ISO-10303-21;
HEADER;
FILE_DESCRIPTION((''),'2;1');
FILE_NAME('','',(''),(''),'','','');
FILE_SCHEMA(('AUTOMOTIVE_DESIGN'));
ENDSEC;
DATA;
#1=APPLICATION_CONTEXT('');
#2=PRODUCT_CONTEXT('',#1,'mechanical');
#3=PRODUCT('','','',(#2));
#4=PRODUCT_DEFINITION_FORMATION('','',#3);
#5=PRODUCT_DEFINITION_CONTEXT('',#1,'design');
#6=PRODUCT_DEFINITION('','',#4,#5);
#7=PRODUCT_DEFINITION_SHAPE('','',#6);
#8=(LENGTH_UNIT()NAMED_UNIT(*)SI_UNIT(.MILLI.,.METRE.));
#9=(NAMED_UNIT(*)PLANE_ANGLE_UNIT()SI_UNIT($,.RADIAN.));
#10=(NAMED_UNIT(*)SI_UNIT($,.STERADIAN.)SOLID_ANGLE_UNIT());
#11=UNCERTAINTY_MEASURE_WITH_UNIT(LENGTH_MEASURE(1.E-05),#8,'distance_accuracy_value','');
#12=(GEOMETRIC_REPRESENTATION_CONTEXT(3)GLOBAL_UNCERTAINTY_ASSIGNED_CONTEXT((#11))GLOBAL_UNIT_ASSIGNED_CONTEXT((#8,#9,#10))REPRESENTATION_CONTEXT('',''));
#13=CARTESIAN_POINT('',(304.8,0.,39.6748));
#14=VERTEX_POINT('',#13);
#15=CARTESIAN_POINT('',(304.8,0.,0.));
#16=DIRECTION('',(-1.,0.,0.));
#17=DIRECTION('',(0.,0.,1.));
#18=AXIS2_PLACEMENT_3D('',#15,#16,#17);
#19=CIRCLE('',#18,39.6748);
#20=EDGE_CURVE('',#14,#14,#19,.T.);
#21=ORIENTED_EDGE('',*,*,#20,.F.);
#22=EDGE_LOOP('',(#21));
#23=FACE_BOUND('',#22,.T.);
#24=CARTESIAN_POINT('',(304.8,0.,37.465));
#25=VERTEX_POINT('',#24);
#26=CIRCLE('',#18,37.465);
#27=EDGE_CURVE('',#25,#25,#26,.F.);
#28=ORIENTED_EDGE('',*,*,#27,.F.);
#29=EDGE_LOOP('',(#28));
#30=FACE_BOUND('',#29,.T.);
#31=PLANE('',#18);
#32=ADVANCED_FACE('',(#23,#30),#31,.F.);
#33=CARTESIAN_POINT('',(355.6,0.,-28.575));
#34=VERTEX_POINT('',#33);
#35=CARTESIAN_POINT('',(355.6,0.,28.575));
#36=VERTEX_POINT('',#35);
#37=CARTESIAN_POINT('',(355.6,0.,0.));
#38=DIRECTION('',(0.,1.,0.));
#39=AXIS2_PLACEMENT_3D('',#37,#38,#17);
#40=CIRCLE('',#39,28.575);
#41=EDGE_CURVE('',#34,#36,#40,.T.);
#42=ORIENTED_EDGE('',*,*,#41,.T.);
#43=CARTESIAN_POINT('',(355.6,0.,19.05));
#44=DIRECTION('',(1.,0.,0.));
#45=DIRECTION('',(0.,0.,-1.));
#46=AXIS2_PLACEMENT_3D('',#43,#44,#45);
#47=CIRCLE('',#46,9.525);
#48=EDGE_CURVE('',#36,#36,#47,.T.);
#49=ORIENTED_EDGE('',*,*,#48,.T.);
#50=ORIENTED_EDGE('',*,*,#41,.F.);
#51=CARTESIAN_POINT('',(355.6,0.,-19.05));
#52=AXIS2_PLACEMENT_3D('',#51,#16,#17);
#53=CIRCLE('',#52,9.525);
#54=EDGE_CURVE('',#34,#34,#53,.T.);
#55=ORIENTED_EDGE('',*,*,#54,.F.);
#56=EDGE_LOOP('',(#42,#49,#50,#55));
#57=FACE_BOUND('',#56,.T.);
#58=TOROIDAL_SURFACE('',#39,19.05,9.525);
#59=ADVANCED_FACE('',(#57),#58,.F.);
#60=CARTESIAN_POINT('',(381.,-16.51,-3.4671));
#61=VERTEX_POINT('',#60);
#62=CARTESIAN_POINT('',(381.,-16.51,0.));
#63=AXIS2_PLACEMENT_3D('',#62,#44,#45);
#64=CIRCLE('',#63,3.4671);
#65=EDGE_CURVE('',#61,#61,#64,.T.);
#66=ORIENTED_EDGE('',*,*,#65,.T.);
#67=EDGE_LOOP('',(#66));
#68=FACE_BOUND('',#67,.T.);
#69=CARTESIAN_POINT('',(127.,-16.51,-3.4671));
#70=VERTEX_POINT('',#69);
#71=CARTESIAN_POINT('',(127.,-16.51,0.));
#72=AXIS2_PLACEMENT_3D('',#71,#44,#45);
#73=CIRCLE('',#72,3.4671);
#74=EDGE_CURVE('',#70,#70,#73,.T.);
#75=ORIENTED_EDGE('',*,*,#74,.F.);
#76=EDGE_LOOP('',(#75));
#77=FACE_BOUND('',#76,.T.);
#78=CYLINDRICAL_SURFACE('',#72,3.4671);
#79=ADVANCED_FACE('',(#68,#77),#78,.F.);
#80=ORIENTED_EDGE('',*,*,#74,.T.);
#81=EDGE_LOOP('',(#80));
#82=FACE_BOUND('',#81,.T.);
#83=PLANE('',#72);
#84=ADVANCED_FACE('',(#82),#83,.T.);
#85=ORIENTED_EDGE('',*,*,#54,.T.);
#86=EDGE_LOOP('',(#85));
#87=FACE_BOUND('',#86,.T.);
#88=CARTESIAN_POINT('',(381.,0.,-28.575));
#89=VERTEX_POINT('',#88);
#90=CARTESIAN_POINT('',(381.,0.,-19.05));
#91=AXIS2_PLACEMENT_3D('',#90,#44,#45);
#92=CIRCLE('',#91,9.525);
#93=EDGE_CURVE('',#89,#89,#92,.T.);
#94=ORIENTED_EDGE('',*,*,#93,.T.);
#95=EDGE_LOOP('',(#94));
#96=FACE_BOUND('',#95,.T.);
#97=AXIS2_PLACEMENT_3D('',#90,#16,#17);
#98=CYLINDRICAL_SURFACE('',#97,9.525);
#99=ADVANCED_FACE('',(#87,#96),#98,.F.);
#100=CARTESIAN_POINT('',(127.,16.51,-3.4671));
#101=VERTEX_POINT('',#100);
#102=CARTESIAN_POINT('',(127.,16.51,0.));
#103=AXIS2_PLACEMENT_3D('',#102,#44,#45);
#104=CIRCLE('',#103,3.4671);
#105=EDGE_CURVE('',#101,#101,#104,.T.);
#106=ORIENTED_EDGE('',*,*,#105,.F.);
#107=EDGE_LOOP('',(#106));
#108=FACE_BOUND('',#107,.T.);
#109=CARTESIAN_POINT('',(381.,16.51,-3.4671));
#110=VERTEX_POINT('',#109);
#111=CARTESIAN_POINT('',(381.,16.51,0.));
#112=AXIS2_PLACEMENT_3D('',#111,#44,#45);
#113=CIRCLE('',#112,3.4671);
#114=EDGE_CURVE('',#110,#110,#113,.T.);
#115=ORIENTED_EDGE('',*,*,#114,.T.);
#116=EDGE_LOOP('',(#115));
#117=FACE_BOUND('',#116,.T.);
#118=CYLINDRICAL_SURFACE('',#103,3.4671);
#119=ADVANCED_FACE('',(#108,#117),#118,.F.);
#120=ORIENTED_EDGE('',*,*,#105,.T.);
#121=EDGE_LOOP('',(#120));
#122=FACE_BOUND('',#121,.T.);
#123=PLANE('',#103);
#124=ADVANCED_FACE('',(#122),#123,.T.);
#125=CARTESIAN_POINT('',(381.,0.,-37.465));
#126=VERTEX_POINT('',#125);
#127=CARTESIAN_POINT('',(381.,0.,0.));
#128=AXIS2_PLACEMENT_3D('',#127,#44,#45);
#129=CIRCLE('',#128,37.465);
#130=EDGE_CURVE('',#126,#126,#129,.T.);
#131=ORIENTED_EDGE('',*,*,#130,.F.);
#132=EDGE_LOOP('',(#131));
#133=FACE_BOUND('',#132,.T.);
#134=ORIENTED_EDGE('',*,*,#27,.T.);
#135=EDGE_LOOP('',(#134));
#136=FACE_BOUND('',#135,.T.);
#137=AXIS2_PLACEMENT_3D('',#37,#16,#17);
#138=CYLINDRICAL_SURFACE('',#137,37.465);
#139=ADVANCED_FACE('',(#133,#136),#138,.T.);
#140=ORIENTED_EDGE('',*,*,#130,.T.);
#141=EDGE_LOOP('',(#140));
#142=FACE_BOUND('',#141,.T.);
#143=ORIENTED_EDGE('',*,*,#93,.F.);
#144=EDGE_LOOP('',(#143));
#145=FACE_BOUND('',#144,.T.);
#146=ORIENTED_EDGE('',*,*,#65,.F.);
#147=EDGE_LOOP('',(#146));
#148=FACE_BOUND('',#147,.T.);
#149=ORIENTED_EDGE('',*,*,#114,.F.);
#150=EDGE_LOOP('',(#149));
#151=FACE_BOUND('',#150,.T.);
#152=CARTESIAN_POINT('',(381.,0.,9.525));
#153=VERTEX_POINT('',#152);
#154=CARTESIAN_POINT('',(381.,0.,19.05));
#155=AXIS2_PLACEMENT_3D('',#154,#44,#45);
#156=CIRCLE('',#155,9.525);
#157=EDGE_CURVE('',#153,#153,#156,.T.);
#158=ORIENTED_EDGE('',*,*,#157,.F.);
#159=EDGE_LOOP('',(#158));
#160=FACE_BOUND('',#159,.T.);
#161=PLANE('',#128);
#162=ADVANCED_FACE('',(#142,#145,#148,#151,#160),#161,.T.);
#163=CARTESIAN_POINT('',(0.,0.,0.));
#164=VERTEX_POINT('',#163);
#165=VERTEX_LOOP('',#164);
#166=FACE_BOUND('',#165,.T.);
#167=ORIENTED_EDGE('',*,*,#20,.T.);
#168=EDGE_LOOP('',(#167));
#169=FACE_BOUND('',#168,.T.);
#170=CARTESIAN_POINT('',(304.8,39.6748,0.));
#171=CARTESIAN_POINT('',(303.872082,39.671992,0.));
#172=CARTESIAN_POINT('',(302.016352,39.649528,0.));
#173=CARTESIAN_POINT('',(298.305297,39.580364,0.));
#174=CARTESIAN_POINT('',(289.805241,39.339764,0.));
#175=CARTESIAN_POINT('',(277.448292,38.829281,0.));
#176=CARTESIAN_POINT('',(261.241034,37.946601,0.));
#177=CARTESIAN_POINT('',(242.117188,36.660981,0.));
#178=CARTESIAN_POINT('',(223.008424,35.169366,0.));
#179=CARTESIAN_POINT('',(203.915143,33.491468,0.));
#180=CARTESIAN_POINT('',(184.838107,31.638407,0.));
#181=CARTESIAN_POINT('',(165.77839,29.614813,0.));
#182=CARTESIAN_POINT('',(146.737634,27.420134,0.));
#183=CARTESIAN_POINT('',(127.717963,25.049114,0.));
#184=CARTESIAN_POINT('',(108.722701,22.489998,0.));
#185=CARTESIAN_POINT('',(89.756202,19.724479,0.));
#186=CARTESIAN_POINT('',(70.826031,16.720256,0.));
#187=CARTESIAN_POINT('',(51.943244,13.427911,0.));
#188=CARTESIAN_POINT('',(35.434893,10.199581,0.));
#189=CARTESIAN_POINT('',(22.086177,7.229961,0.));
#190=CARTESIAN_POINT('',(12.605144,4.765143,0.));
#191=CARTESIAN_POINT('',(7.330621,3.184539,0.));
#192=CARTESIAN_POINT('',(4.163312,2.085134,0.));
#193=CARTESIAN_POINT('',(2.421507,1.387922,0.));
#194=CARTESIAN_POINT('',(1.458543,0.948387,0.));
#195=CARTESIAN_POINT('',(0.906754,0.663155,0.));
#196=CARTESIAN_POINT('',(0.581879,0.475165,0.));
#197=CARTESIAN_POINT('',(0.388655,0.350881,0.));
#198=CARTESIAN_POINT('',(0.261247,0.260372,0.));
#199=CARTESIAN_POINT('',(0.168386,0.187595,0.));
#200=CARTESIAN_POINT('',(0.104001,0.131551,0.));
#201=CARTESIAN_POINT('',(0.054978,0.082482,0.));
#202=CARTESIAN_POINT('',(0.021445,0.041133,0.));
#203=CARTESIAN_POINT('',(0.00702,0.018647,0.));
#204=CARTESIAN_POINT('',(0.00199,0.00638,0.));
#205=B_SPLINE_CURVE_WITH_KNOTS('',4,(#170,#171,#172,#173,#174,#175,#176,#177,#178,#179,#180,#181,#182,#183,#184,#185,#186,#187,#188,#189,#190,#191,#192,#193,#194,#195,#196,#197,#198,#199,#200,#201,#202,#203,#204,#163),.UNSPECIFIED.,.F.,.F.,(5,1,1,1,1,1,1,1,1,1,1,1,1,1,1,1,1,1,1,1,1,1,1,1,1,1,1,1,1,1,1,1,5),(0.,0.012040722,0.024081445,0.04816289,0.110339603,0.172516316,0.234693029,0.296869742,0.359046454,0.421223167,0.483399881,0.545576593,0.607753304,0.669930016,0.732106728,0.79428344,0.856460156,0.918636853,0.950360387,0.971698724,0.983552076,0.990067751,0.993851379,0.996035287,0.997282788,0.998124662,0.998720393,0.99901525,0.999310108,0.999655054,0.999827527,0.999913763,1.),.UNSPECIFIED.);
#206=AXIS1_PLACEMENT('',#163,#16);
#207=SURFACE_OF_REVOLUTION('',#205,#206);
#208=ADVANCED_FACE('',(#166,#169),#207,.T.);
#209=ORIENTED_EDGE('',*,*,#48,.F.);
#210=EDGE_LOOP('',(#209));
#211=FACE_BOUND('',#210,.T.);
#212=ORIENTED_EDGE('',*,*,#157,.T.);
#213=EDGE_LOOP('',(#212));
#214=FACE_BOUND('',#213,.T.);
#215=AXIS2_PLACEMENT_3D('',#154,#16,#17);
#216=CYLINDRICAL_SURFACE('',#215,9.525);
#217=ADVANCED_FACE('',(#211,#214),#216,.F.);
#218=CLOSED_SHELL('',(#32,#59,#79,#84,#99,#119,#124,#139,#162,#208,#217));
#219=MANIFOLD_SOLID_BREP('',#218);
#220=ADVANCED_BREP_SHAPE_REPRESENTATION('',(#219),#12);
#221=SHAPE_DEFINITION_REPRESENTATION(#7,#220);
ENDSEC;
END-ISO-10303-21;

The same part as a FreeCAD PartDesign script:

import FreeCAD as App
import Part
import Sketcher
Q = App.Units.Quantity

doc = App.newDocument("Part")
params = doc.addObject("Spreadsheet::Sheet", "Params")
for row, (alias, value) in enumerate([
    ("revolution_angle", "360 deg"),
    ("sketch2_diameter", "2.95 in"),
    ("pad1_length", "2 in"),
    ("sketch3_diameter", "0.75 in"),
    ("groove_angle", "180 deg"),
    ("sketch4_diameter", "2.95 in"),
    ("sketch4_diameter2", "0.75 in"),
    ("pad2_length", "1 in"),
    ("sketch5_diameter", "0.273 in"),
    ("pocket1_length", "10 in"),
], start=1):
    params.set(f"A{row}", alias)
    params.set(f"B{row}", "=" + value)
    params.setAlias(f"B{row}", alias)

body = doc.addObject("PartDesign::Body", "Body")

# Sketch on XY plane
sketch1 = doc.addObject("Sketcher::SketchObject", "Sketch")
body.addObject(sketch1)
sketch1.AttachmentSupport = (doc.XY_Plane, [""])
sketch1.MapMode = "FlatFace"
sketch1.addGeometry([
    Part.LineSegment(App.Vector(0, 0, 0), App.Vector(304.8, 0, 0)),
    Part.LineSegment(App.Vector(304.8, 0, 0), App.Vector(304.8, 39.6748, 0)),
    Part.BSplineCurve([App.Vector(0, 0, 0), App.Vector(0.00199, 0.00638, 0), App.Vector(0.00702, 0.018647, 0), App.Vector(0.021445, 0.041133, 0), App.Vector(0.054978, 0.082482, 0), App.Vector(0.104001, 0.131551, 0), App.Vector(0.168386, 0.187595, 0), App.Vector(0.261247, 0.260372, 0), App.Vector(0.388655, 0.350881, 0), App.Vector(0.581879, 0.475165, 0), App.Vector(0.906754, 0.663155, 0), App.Vector(1.458543, 0.948387, 0), App.Vector(2.421507, 1.387922, 0), App.Vector(4.163312, 2.085134, 0), App.Vector(7.330621, 3.184539, 0), App.Vector(12.605144, 4.765143, 0), App.Vector(22.086177, 7.229961, 0), App.Vector(35.434893, 10.199581, 0), App.Vector(51.943244, 13.427911, 0), App.Vector(70.826031, 16.720256, 0), App.Vector(89.756202, 19.724479, 0), App.Vector(108.722701, 22.489998, 0), App.Vector(127.717963, 25.049114, 0), App.Vector(146.737634, 27.420134, 0), App.Vector(165.77839, 29.614813, 0), App.Vector(184.838107, 31.638407, 0), App.Vector(203.915143, 33.491468, 0), App.Vector(223.008424, 35.169366, 0), App.Vector(242.117188, 36.660981, 0), App.Vector(261.241034, 37.946601, 0), App.Vector(277.448292, 38.829281, 0), App.Vector(289.805241, 39.339764, 0), App.Vector(298.305297, 39.580364, 0), App.Vector(302.016352, 39.649528, 0), App.Vector(303.872082, 39.671992, 0), App.Vector(304.8, 39.6748, 0)], [5, 1, 1, 1, 1, 1, 1, 1, 1, 1, 1, 1, 1, 1, 1, 1, 1, 1, 1, 1, 1, 1, 1, 1, 1, 1, 1, 1, 1, 1, 1, 1, 5], [0, 0.000086237, 0.000172473, 0.000344946, 0.000689892, 0.00098475, 0.001279607, 0.001875338, 0.002717212, 0.003964713, 0.006148621, 0.009932249, 0.016447924, 0.028301276, 0.049639613, 0.081363147, 0.143539844, 0.20571656, 0.267893272, 0.330069984, 0.392246696, 0.454423407, 0.516600119, 0.578776833, 0.640953546, 0.703130258, 0.765306971, 0.827483684, 0.889660397, 0.95183711, 0.975918555, 0.987959278, 1], False, 4, [1, 1, 1, 1, 1, 1, 1, 1, 1, 1, 1, 1, 1, 1, 1, 1, 1, 1, 1, 1, 1, 1, 1, 1, 1, 1, 1, 1, 1, 1, 1, 1, 1, 1, 1, 1], False),
], False)
sketch1.addConstraint([
    Sketcher.Constraint("Block", 2),
    Sketcher.Constraint("Coincident", 0, 2, 1, 1),
    Sketcher.Constraint("Coincident", 1, 2, 2, 2),
    Sketcher.Constraint("Coincident", 2, 1, 0, 1),
    Sketcher.Constraint("Horizontal", 0),
    Sketcher.Constraint("Vertical", 1),
])
revolution = doc.addObject("PartDesign::Revolution", "Revolution")
body.addObject(revolution)
revolution.Profile = sketch1
revolution.ReferenceAxis = (sketch1, ["H_Axis"])
revolution.setExpression("Angle", "Params.revolution_angle")

# Sketch on YZ plane
sketch2 = doc.addObject("Sketcher::SketchObject", "Sketch001")
body.addObject(sketch2)
sketch2.AttachmentSupport = (doc.YZ_Plane, [""])
sketch2.MapMode = "FlatFace"
sketch2.AttachmentOffset = App.Placement(App.Vector(0, 0, 12 * 25.4), App.Rotation())
sketch2.addGeometry(Part.Circle(App.Vector(0, 0, 0), App.Vector(0, 0, 1), 37), False)
sketch2.addConstraint([
    Sketcher.Constraint("Coincident", 0, 3, -1, 1),
    Sketcher.Constraint("Diameter", 0, Q("2.95 in")),
])
sketch2.setExpression("Constraints[1]", "Params.sketch2_diameter")
pad1 = doc.addObject("PartDesign::Pad", "Pad")
body.addObject(pad1)
pad1.Profile = sketch2
pad1.setExpression("Length", "Params.pad1_length")

# Sketch on YZ plane
sketch3 = doc.addObject("Sketcher::SketchObject", "Sketch002")
body.addObject(sketch3)
sketch3.AttachmentSupport = (doc.YZ_Plane, [""])
sketch3.MapMode = "FlatFace"
sketch3.AttachmentOffset = App.Placement(App.Vector(0, 0, 14 * 25.4), App.Rotation())
sketch3.addGeometry(Part.Circle(App.Vector(0, 19, 0), App.Vector(0, 0, 1), 10), False)
sketch3.addConstraint([
    Sketcher.Constraint("PointOnObject", 0, 3, -2),
    Sketcher.Constraint("Diameter", 0, Q("0.75 in")),
    Sketcher.Constraint("DistanceY", -1, 1, 0, 3, Q("0.75 in")),
])
sketch3.setExpression("Constraints[1]", "Params.sketch3_diameter")
groove = doc.addObject("PartDesign::Groove", "Groove")
body.addObject(groove)
groove.Profile = sketch3
groove.ReferenceAxis = (sketch3, ["H_Axis"])
groove.setExpression("Angle", "Params.groove_angle")
groove.Reversed = True

# Sketch on YZ plane
sketch4 = doc.addObject("Sketcher::SketchObject", "Sketch003")
body.addObject(sketch4)
sketch4.AttachmentSupport = (doc.YZ_Plane, [""])
sketch4.MapMode = "FlatFace"
sketch4.AttachmentOffset = App.Placement(App.Vector(0, 0, 14 * 25.4), App.Rotation())
sketch4.addGeometry([
    Part.Circle(App.Vector(0, 0, 0), App.Vector(0, 0, 1), 37),
    Part.Circle(App.Vector(0, -19, 0), App.Vector(0, 0, 1), 10),
    Part.Circle(App.Vector(0, 19, 0), App.Vector(0, 0, 1), 10),
], False)
sketch4.addConstraint([
    Sketcher.Constraint("Coincident", 0, 3, -1, 1),
    Sketcher.Constraint("Equal", 1, 2),
    Sketcher.Constraint("Symmetric", 1, 3, 2, 3, -1, 1),
    Sketcher.Constraint("PointOnObject", 1, 3, -2),
    Sketcher.Constraint("Diameter", 0, Q("2.95 in")),
    Sketcher.Constraint("Diameter", 1, Q("0.75 in")),
    Sketcher.Constraint("DistanceY", 1, 3, 2, 3, Q("1.5 in")),
])
sketch4.setExpression("Constraints[4]", "Params.sketch4_diameter")
sketch4.setExpression("Constraints[5]", "Params.sketch4_diameter2")
pad2 = doc.addObject("PartDesign::Pad", "Pad001")
body.addObject(pad2)
pad2.Profile = sketch4
pad2.setExpression("Length", "Params.pad2_length")

# Sketch on YZ plane
sketch5 = doc.addObject("Sketcher::SketchObject", "Sketch004")
body.addObject(sketch5)
sketch5.AttachmentSupport = (doc.YZ_Plane, [""])
sketch5.MapMode = "FlatFace"
sketch5.AttachmentOffset = App.Placement(App.Vector(0, 0, 15 * 25.4), App.Rotation())
sketch5.addGeometry([
    Part.Circle(App.Vector(16.5, 0, 0), App.Vector(0, 0, 1), 3.5),
    Part.Circle(App.Vector(-16.5, 0, 0), App.Vector(0, 0, 1), 3.5),
], False)
sketch5.addConstraint([
    Sketcher.Constraint("Equal", 0, 1),
    Sketcher.Constraint("Symmetric", 0, 3, 1, 3, -1, 1),
    Sketcher.Constraint("PointOnObject", 0, 3, -1),
    Sketcher.Constraint("Diameter", 0, Q("0.273 in")),
    Sketcher.Constraint("DistanceX", 1, 3, 0, 3, Q("1.3 in")),
])
sketch5.setExpression("Constraints[3]", "Params.sketch5_diameter")
pocket1 = doc.addObject("PartDesign::Pocket", "Pocket")
body.addObject(pocket1)
pocket1.Profile = sketch5
pocket1.setExpression("Length", "Params.pocket1_length")

doc.recompute()
